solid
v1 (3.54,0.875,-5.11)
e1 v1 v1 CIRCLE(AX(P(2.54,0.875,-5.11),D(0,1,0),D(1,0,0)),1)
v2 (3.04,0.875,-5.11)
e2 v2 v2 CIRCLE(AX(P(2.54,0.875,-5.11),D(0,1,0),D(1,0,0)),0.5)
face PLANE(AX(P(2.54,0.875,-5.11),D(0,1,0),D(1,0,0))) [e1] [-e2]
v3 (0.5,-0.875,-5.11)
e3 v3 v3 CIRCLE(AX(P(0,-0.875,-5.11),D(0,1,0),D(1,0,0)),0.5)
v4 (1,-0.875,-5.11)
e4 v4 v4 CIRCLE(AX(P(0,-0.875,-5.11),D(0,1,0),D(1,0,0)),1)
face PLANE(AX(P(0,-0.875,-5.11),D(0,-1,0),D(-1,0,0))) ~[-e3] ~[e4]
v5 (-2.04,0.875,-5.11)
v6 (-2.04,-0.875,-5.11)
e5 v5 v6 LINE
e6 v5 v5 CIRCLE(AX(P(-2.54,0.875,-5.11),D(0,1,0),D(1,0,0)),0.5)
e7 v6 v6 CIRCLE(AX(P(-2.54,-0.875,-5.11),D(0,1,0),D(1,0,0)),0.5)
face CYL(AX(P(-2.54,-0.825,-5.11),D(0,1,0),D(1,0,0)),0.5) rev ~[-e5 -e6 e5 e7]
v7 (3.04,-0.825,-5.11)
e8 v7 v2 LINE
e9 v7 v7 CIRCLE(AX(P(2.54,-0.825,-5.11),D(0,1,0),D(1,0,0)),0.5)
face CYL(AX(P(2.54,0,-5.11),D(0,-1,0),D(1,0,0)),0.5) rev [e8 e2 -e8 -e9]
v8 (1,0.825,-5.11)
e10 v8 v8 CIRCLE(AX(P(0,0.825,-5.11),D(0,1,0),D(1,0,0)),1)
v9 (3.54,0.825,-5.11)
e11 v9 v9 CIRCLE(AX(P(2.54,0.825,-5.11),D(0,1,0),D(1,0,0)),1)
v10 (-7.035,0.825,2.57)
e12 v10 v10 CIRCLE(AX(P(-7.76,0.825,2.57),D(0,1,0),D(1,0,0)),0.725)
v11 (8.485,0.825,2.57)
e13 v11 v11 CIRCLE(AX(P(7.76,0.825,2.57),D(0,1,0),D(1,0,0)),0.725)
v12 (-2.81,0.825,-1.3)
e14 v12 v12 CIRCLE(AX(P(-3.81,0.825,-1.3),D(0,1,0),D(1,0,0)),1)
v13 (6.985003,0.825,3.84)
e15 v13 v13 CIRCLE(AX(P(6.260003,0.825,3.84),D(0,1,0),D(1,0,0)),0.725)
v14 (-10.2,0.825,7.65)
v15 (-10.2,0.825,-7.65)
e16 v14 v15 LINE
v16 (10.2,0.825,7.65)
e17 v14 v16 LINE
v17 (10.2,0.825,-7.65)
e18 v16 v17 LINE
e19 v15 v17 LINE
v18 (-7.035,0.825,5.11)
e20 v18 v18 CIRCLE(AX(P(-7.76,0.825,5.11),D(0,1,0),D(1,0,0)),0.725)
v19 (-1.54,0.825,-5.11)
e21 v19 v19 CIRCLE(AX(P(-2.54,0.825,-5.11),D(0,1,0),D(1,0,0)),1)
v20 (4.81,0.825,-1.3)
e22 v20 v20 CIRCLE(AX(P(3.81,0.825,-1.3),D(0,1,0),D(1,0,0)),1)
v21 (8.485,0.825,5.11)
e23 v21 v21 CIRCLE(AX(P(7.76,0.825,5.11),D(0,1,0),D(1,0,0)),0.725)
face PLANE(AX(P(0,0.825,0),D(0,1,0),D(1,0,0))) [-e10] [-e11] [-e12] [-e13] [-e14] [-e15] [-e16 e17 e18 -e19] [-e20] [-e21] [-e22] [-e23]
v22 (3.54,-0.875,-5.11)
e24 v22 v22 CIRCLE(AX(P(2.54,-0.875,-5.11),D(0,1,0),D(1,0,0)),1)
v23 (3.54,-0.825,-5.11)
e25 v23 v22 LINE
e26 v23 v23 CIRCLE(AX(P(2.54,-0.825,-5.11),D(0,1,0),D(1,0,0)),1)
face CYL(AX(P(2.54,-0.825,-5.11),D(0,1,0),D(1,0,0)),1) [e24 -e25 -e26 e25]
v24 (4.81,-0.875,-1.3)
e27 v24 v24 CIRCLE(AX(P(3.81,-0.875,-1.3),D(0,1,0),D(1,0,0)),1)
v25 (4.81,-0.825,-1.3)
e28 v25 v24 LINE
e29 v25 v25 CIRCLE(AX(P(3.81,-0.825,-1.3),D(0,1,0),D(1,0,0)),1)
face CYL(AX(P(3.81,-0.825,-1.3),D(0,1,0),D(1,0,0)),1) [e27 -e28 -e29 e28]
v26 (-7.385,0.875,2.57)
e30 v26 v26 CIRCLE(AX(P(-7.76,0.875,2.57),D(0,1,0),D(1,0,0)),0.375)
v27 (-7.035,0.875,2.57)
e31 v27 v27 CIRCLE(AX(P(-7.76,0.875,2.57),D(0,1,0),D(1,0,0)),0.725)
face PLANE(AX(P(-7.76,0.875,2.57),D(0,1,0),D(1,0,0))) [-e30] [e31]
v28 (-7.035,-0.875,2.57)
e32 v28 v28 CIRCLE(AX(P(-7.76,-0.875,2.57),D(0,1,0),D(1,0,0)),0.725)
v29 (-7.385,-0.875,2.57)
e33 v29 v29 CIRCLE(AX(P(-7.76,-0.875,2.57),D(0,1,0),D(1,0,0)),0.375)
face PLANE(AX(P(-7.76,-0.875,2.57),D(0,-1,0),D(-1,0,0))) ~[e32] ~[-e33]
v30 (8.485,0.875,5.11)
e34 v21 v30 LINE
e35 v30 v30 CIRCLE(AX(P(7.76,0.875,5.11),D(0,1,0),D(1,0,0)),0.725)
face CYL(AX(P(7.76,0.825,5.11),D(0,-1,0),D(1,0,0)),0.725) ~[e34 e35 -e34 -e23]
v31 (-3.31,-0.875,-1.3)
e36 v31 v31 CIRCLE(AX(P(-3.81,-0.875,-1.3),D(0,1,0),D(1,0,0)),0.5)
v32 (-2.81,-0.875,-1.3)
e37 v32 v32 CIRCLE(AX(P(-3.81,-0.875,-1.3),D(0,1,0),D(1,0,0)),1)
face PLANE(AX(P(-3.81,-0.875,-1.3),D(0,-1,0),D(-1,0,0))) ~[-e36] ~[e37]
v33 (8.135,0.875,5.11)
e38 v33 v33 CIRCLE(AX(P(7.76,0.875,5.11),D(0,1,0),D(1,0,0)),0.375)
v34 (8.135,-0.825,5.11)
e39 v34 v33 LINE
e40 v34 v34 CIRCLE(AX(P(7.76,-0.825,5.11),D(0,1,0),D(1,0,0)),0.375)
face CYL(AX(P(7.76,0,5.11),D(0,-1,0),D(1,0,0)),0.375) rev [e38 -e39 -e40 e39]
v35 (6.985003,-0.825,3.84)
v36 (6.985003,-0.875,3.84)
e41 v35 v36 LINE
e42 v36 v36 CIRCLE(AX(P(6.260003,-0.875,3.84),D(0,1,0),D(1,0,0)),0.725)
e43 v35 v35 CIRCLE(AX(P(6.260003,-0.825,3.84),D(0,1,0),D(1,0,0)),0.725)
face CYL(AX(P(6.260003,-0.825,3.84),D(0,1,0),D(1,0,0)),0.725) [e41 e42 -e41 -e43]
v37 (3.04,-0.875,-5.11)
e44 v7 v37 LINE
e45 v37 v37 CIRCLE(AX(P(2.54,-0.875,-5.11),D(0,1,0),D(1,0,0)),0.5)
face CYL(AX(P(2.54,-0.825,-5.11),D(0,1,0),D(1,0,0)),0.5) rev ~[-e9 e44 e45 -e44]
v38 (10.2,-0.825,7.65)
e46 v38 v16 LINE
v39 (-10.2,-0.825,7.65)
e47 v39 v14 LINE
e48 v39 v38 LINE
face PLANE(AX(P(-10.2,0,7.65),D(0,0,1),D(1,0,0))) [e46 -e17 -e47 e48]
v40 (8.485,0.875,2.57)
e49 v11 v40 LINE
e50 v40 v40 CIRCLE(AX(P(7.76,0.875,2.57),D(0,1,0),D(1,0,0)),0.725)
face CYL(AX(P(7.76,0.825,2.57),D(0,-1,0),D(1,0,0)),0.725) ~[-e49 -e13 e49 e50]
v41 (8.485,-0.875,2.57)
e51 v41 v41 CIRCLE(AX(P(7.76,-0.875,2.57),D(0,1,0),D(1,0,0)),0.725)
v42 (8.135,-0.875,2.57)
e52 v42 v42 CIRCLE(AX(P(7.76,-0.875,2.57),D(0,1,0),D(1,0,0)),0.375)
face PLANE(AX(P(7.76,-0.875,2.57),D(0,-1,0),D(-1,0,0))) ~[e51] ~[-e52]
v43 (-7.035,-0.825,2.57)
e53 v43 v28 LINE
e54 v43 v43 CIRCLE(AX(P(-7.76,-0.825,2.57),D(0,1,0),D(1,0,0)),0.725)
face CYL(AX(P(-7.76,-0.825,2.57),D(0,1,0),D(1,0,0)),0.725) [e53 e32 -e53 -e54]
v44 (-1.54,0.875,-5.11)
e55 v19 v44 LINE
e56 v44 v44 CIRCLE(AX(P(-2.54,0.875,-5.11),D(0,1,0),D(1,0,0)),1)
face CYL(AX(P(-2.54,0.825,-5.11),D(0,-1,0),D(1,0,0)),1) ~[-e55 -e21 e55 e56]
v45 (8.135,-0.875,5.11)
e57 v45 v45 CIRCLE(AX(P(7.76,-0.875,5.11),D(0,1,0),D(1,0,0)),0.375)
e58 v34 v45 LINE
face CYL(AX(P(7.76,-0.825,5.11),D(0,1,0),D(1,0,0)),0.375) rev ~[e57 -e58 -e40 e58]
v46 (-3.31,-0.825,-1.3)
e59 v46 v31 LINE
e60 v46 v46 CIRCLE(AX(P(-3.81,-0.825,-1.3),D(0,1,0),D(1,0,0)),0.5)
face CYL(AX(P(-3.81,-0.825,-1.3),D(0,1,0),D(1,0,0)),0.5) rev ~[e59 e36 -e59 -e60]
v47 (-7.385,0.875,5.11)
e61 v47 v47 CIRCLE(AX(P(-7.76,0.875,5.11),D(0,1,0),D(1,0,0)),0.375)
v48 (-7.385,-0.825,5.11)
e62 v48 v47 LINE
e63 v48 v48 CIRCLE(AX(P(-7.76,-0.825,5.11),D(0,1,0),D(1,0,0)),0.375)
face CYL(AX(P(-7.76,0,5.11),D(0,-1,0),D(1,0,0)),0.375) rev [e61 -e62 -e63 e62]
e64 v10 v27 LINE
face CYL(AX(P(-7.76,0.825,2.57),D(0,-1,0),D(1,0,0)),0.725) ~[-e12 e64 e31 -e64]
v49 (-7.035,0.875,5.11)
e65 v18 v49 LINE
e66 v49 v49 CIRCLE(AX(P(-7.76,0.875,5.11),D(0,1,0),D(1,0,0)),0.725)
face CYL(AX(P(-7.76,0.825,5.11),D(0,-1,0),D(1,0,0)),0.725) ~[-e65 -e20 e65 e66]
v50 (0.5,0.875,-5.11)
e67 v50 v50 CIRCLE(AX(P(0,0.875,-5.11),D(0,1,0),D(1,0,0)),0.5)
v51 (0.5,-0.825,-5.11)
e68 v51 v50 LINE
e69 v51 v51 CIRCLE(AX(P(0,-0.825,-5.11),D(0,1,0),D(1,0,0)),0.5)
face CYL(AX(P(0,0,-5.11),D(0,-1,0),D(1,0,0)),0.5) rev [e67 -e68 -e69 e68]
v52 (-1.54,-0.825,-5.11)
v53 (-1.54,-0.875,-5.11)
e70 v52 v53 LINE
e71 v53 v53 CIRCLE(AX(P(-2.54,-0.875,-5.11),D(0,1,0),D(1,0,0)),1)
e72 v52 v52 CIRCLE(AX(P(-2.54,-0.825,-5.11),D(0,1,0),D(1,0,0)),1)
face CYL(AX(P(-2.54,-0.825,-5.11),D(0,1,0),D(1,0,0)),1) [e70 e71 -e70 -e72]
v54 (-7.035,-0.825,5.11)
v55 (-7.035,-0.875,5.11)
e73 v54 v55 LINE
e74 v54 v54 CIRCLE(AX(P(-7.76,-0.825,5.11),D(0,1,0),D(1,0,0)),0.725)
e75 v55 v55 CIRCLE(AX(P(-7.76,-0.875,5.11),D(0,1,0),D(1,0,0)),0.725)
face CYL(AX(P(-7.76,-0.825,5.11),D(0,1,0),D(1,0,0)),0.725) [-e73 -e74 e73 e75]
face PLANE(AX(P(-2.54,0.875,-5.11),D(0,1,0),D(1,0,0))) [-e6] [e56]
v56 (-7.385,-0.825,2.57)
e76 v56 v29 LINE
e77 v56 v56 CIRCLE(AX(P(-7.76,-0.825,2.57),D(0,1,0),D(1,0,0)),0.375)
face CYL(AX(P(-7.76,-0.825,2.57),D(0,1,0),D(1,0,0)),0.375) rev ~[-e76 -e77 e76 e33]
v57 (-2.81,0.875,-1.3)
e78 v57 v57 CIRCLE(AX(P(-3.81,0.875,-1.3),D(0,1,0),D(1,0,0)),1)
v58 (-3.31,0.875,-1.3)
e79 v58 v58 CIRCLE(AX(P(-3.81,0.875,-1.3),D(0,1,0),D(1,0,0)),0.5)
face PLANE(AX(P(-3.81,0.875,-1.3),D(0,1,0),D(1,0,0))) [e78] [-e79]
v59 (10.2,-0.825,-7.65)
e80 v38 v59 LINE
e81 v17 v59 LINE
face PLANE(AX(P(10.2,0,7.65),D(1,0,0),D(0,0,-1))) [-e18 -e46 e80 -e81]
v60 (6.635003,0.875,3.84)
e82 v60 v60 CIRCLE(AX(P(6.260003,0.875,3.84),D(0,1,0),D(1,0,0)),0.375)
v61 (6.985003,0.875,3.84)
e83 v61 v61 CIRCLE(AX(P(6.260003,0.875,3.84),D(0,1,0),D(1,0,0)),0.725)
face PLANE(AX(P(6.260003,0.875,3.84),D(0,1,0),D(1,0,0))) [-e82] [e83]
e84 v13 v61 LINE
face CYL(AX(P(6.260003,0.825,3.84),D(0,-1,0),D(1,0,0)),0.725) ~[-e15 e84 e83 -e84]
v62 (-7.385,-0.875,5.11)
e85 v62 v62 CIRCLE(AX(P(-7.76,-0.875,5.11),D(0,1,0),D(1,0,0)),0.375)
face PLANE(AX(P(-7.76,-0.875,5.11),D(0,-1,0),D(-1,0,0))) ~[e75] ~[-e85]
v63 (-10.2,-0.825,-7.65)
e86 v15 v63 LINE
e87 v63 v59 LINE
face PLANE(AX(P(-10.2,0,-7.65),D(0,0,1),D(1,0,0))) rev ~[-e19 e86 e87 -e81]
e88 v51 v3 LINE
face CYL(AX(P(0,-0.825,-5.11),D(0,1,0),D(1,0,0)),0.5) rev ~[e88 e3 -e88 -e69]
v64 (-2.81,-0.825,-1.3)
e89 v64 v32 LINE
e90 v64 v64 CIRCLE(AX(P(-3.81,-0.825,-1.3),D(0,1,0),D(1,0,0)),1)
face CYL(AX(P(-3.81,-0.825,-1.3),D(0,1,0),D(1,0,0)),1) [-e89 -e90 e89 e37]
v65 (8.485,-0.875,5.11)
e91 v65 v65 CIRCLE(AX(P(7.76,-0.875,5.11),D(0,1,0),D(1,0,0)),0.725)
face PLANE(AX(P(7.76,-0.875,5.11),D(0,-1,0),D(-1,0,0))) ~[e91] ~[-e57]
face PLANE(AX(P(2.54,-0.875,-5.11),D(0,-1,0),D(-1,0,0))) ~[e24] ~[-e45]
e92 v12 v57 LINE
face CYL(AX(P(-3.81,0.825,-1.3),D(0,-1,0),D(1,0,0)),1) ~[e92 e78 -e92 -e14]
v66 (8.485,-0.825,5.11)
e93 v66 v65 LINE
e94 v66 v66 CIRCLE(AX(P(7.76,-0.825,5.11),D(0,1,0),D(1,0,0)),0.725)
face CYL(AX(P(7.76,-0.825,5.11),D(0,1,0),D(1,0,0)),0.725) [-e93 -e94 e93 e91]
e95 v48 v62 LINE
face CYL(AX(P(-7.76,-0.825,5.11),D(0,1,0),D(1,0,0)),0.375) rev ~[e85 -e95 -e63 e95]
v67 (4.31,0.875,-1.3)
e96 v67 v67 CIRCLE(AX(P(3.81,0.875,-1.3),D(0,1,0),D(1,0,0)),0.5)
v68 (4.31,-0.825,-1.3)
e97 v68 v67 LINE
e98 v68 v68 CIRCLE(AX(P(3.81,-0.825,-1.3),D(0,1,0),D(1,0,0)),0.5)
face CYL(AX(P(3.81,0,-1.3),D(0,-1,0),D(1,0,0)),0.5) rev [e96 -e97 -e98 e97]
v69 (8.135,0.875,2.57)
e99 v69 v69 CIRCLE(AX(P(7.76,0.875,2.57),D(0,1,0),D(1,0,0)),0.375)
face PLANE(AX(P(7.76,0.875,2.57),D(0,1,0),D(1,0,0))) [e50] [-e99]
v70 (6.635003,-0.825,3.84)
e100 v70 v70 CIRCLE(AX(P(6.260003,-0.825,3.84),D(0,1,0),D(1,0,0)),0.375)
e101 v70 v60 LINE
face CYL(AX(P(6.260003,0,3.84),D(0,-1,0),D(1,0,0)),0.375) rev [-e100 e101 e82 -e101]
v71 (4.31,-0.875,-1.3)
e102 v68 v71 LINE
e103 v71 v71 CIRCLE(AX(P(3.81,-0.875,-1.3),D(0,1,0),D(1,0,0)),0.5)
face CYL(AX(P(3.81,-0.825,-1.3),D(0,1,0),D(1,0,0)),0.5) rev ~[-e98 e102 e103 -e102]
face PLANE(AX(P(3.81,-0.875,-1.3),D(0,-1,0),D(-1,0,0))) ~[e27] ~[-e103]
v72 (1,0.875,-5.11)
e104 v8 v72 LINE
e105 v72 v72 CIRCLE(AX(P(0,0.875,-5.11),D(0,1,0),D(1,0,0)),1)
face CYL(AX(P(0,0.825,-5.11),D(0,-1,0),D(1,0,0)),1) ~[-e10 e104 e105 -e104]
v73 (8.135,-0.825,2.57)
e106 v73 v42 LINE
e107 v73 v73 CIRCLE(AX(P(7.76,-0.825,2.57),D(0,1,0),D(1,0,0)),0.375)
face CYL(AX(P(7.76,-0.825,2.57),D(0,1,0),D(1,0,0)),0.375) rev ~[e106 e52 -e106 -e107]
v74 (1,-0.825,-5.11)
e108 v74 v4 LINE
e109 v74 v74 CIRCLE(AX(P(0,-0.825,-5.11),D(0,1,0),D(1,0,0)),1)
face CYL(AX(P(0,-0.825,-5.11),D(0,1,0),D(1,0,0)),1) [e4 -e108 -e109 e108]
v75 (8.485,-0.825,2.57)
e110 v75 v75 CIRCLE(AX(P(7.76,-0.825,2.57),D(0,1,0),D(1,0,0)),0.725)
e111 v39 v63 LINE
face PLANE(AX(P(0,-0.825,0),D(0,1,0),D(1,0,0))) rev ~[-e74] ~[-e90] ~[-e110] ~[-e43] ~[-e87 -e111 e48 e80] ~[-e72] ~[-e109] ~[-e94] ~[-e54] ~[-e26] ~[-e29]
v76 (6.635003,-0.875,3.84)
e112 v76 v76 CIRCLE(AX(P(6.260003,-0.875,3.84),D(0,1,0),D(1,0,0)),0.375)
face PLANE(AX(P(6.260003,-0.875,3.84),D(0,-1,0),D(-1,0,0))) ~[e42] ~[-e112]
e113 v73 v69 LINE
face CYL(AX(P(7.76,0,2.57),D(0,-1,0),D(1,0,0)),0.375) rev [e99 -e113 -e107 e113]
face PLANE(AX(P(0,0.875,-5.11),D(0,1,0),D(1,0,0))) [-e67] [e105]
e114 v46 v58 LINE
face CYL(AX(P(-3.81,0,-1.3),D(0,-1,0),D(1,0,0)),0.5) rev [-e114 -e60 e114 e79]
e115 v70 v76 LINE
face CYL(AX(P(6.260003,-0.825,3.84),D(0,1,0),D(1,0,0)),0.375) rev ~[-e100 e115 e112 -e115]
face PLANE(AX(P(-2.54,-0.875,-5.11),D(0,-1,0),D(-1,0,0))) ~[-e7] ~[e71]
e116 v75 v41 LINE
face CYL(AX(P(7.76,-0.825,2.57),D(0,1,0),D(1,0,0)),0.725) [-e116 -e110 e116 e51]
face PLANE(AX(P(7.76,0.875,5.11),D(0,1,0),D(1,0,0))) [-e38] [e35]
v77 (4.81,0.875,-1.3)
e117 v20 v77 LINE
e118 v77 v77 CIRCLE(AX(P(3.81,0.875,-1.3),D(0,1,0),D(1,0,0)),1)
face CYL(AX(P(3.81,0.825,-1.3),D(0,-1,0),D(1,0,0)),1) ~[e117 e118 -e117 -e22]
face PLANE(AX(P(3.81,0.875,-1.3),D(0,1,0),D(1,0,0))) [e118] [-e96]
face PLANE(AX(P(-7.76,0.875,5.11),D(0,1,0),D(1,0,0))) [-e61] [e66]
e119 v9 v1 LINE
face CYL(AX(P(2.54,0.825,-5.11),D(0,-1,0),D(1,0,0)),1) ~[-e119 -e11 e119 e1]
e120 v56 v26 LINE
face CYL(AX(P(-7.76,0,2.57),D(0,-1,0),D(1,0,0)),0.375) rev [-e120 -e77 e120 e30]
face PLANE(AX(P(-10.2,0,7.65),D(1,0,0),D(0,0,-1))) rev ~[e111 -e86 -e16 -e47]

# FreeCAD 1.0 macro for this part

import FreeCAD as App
import Part
import Sketcher
Q = App.Units.Quantity


def add_polygon(sketch, points):
    """Adds a closed chain of lines whose ends are joined by coincident constraints."""
    first, n = sketch.GeometryCount, len(points)
    for a, b in zip(points, points[1:] + points[:1]):
        sketch.addGeometry(Part.LineSegment(App.Vector(*a, 0), App.Vector(*b, 0)), False)
    for i in range(n):
        sketch.addConstraint(Sketcher.Constraint("Coincident", first + i, 2, first + (i + 1) % n, 1))

doc = App.newDocument("Part")
body = doc.addObject("PartDesign::Body", "Body")

# Sketch on XZ plane
sketch1 = body.newObject("Sketcher::SketchObject", "Sketch")
sketch1.AttachmentSupport = (doc.getObject("XZ_Plane"), [""])
sketch1.MapMode = "FlatFace"
add_polygon(sketch1, [(-10.2, -7.65), (-10.2, 7.65), (10.2, 7.65), (10.2, -7.65)])  # lines 0-3
sketch1.addGeometry(Part.Circle(App.Vector(-7.76, 5.11, 0), App.Vector(0, 0, 1), 0.38), False)  # 4
sketch1.addGeometry(Part.Circle(App.Vector(-7.76, 2.57, 0), App.Vector(0, 0, 1), 0.38), False)  # 5
sketch1.addGeometry(Part.Circle(App.Vector(7.76, 5.11, 0), App.Vector(0, 0, 1), 0.38), False)  # 6
sketch1.addGeometry(Part.Circle(App.Vector(6.26, 3.84, 0), App.Vector(0, 0, 1), 0.38), False)  # 7
sketch1.addGeometry(Part.Circle(App.Vector(7.76, 2.57, 0), App.Vector(0, 0, 1), 0.38), False)  # 8
sketch1.addGeometry(Part.Circle(App.Vector(-3.81, -1.3, 0), App.Vector(0, 0, 1), 0.5), False)  # 9
sketch1.addGeometry(Part.Circle(App.Vector(-2.54, -5.11, 0), App.Vector(0, 0, 1), 0.5), False)  # 10
sketch1.addGeometry(Part.Circle(App.Vector(3.81, -1.3, 0), App.Vector(0, 0, 1), 0.5), False)  # 11
sketch1.addGeometry(Part.Circle(App.Vector(0, -5.11, 0), App.Vector(0, 0, 1), 0.5), False)  # 12
sketch1.addGeometry(Part.Circle(App.Vector(2.54, -5.11, 0), App.Vector(0, 0, 1), 0.5), False)  # 13
sketch1.addConstraint([
    Sketcher.Constraint("Vertical", 0),
    Sketcher.Constraint("Horizontal", 1),
    Sketcher.Constraint("Vertical", 2),
    Sketcher.Constraint("Horizontal", 3),
    Sketcher.Constraint("Equal", 4, 5),
    Sketcher.Constraint("Equal", 5, 6),
    Sketcher.Constraint("Equal", 6, 7),
    Sketcher.Constraint("Equal", 7, 8),
    Sketcher.Constraint("Equal", 9, 10),
    Sketcher.Constraint("Equal", 10, 11),
    Sketcher.Constraint("Equal", 11, 12),
    Sketcher.Constraint("Equal", 12, 13),
    Sketcher.Constraint("Symmetric", 0, 2, 2, 2, -1, 1),
    Sketcher.Constraint("Symmetric", 4, 3, 6, 3, -2),
    Sketcher.Constraint("Symmetric", 5, 3, 8, 3, -2),
    Sketcher.Constraint("Symmetric", 9, 3, 11, 3, -2),
    Sketcher.Constraint("Symmetric", 10, 3, 13, 3, -2),
    Sketcher.Constraint("PointOnObject", 12, 3, -2),
    Sketcher.Constraint("Horizontal", 10, 3, 12, 3),
    Sketcher.Constraint("Vertical", 4, 3, 5, 3),
    Sketcher.Constraint("Diameter", 9, Q("1 mm")),
    Sketcher.Constraint("Diameter", 4, Q("0.75 mm")),
    Sketcher.Constraint("DistanceX", 1, 1, 1, 2, Q("20.4 mm")),
    Sketcher.Constraint("DistanceY", 0, 1, 0, 2, Q("15.3 mm")),
    Sketcher.Constraint("DistanceY", 9, 3, -1, 1, Q("1.3 mm")),
    Sketcher.Constraint("DistanceX", 10, 3, 8, 3, Q("10.3 mm")),
    Sketcher.Constraint("DistanceX", 4, 3, -1, 1, Q("7.76 mm")),
    Sketcher.Constraint("DistanceY", -1, 1, 4, 3, Q("5.11 mm")),
    Sketcher.Constraint("DistanceY", -1, 1, 5, 3, Q("2.57 mm")),
    Sketcher.Constraint("DistanceY", -1, 1, 7, 3, Q("3.84 mm")),
    Sketcher.Constraint("DistanceX", 9, 3, -1, 1, Q("3.81 mm")),
    Sketcher.Constraint("DistanceY", 10, 3, -1, 1, Q("5.11 mm")),
    Sketcher.Constraint("DistanceX", -1, 1, 7, 3, Q("6.260003 mm")),
])
pad1 = body.newObject("PartDesign::Pad", "Pad")
pad1.Profile = sketch1
pad1.Length = 1.65
pad1.Midplane = True

# Sketch on XZ plane
sketch2 = body.newObject("Sketcher::SketchObject", "Sketch001")
sketch2.AttachmentSupport = (doc.getObject("XZ_Plane"), [""])
sketch2.MapMode = "FlatFace"
sketch2.AttachmentOffset = App.Placement(App.Vector(0, 0, -0.825), App.Rotation())
sketch2.addGeometry([
    Part.Circle(App.Vector(-2.54, -5.11, 0), App.Vector(0, 0, 1), 1),  # 0
    Part.Circle(App.Vector(-2.54, -5.11, 0), App.Vector(0, 0, 1), 0.5),  # 1
    Part.Circle(App.Vector(0, -5.11, 0), App.Vector(0, 0, 1), 1),  # 2
    Part.Circle(App.Vector(0, -5.11, 0), App.Vector(0, 0, 1), 0.5),  # 3
    Part.Circle(App.Vector(2.54, -5.11, 0), App.Vector(0, 0, 1), 1),  # 4
    Part.Circle(App.Vector(2.54, -5.11, 0), App.Vector(0, 0, 1), 0.5),  # 5
    Part.Circle(App.Vector(3.81, -1.3, 0), App.Vector(0, 0, 1), 1),  # 6
    Part.Circle(App.Vector(3.81, -1.3, 0), App.Vector(0, 0, 1), 0.5),  # 7
    Part.Circle(App.Vector(-3.81, -1.3, 0), App.Vector(0, 0, 1), 1),  # 8
    Part.Circle(App.Vector(-3.81, -1.3, 0), App.Vector(0, 0, 1), 0.5),  # 9
    Part.Circle(App.Vector(-7.76, 2.57, 0), App.Vector(0, 0, 1), 0.72),  # 10
    Part.Circle(App.Vector(-7.76, 2.57, 0), App.Vector(0, 0, 1), 0.38),  # 11
    Part.Circle(App.Vector(-7.76, 5.11, 0), App.Vector(0, 0, 1), 0.72),  # 12
    Part.Circle(App.Vector(-7.76, 5.11, 0), App.Vector(0, 0, 1), 0.38),  # 13
    Part.Circle(App.Vector(6.26, 3.84, 0), App.Vector(0, 0, 1), 0.72),  # 14
    Part.Circle(App.Vector(6.26, 3.84, 0), App.Vector(0, 0, 1), 0.38),  # 15
    Part.Circle(App.Vector(7.76, 5.11, 0), App.Vector(0, 0, 1), 0.72),  # 16
    Part.Circle(App.Vector(7.76, 5.11, 0), App.Vector(0, 0, 1), 0.38),  # 17
    Part.Circle(App.Vector(7.76, 2.57, 0), App.Vector(0, 0, 1), 0.72),  # 18
    Part.Circle(App.Vector(7.76, 2.57, 0), App.Vector(0, 0, 1), 0.38),  # 19
], False)
sketch2.addConstraint([
    Sketcher.Constraint("Coincident", 1, 3, 0, 3),
    Sketcher.Constraint("Coincident", 3, 3, 2, 3),
    Sketcher.Constraint("Coincident", 5, 3, 4, 3),
    Sketcher.Constraint("Coincident", 7, 3, 6, 3),
    Sketcher.Constraint("Coincident", 9, 3, 8, 3),
    Sketcher.Constraint("Coincident", 11, 3, 10, 3),
    Sketcher.Constraint("Coincident", 13, 3, 12, 3),
    Sketcher.Constraint("Coincident", 15, 3, 14, 3),
    Sketcher.Constraint("Coincident", 17, 3, 16, 3),
    Sketcher.Constraint("Coincident", 19, 3, 18, 3),
    Sketcher.Constraint("Equal", 0, 2),
    Sketcher.Constraint("Equal", 1, 3),
    Sketcher.Constraint("Equal", 2, 4),
    Sketcher.Constraint("Equal", 3, 5),
    Sketcher.Constraint("Equal", 4, 6),
    Sketcher.Constraint("Equal", 5, 7),
    Sketcher.Constraint("Equal", 6, 8),
    Sketcher.Constraint("Equal", 7, 9),
    Sketcher.Constraint("Equal", 10, 12),
    Sketcher.Constraint("Equal", 11, 13),
    Sketcher.Constraint("Equal", 12, 14),
    Sketcher.Constraint("Equal", 13, 15),
    Sketcher.Constraint("Equal", 14, 16),
    Sketcher.Constraint("Equal", 15, 17),
    Sketcher.Constraint("Equal", 16, 18),
    Sketcher.Constraint("Equal", 17, 19),
    Sketcher.Constraint("Symmetric", 0, 3, 4, 3, -2),
    Sketcher.Constraint("Symmetric", 6, 3, 8, 3, -2),
    Sketcher.Constraint("Symmetric", 12, 3, 16, 3, -2),
    Sketcher.Constraint("Symmetric", 10, 3, 18, 3, -2),
    Sketcher.Constraint("PointOnObject", 2, 3, -2),
    Sketcher.Constraint("Horizontal", 1, 3, 2, 3),
    Sketcher.Constraint("Vertical", 11, 3, 12, 3),
    Sketcher.Constraint("Diameter", 0, Q("2 mm")),
    Sketcher.Constraint("Diameter", 1, Q("1 mm")),
    Sketcher.Constraint("Diameter", 10, Q("1.45 mm")),
    Sketcher.Constraint("Diameter", 11, Q("0.75 mm")),
    Sketcher.Constraint("DistanceY", 6, 3, -1, 1, Q("1.3 mm")),
    Sketcher.Constraint("DistanceX", 0, 3, -1, 1, Q("2.54 mm")),
    Sketcher.Constraint("DistanceY", 0, 3, -1, 1, Q("5.11 mm")),
    Sketcher.Constraint("DistanceX", -1, 1, 6, 3, Q("3.81 mm")),
    Sketcher.Constraint("DistanceX", 10, 3, -1, 1, Q("7.76 mm")),
    Sketcher.Constraint("DistanceY", -1, 1, 10, 3, Q("2.57 mm")),
    Sketcher.Constraint("DistanceY", -1, 1, 12, 3, Q("5.11 mm")),
    Sketcher.Constraint("DistanceY", -1, 1, 14, 3, Q("3.84 mm")),
    Sketcher.Constraint("DistanceX", -1, 1, 14, 3, Q("6.260003 mm")),
])
pad2 = body.newObject("PartDesign::Pad", "Pad001")
pad2.Profile = sketch2
pad2.Length = 0.05
pad2.Reversed = True
doc.recompute()

mirrored = body.newObject("PartDesign::Mirrored", "Mirrored")
mirrored.Originals = [pad2]
mirrored.MirrorPlane = (doc.getObject("XZ_Plane"), [""])
body.Tip = mirrored

doc.recompute()
